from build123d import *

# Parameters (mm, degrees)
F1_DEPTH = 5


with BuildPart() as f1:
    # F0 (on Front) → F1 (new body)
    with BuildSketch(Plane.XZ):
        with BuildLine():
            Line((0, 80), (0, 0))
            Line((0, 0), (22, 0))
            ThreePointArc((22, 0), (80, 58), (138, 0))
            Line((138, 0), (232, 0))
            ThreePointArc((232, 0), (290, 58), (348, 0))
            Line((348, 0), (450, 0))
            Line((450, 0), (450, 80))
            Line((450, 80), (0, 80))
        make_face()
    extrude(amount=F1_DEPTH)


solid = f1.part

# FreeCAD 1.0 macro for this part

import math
import FreeCAD as App
import Part
import Sketcher

doc = App.newDocument("Part")
body = doc.addObject("PartDesign::Body", "Body")

sketch1 = doc.addObject("Sketcher::SketchObject", "Sketch")
body.addObject(sketch1)
sketch1.AttachmentSupport = (doc.XZ_Plane, [""])
sketch1.MapMode = "FlatFace"
sketch1.addGeometry([
    Part.LineSegment(App.Vector(0, 80, 0), App.Vector(0, 0, 0)),
    Part.LineSegment(App.Vector(0, 0, 0), App.Vector(22, 0, 0)),
    Part.ArcOfCircle(Part.Circle(App.Vector(80, 0, 0), App.Vector(0, 0, 1), 58), math.radians(0), math.radians(180)),
    Part.LineSegment(App.Vector(138, 0, 0), App.Vector(232, 0, 0)),
    Part.ArcOfCircle(Part.Circle(App.Vector(290, 0, 0), App.Vector(0, 0, 1), 58), math.radians(0), math.radians(180)),
    Part.LineSegment(App.Vector(348, 0, 0), App.Vector(450, 0, 0)),
    Part.LineSegment(App.Vector(450, 0, 0), App.Vector(450, 80, 0)),
    Part.LineSegment(App.Vector(450, 80, 0), App.Vector(0, 80, 0)),
], False)
sketch1.addConstraint([
    Sketcher.Constraint("Coincident", 0, 2, 1, 1),
    Sketcher.Constraint("Coincident", 1, 2, 2, 2),
    Sketcher.Constraint("Coincident", 2, 1, 3, 1),
    Sketcher.Constraint("Coincident", 3, 2, 4, 2),
    Sketcher.Constraint("Coincident", 4, 1, 5, 1),
    Sketcher.Constraint("Coincident", 5, 2, 6, 1),
    Sketcher.Constraint("Coincident", 6, 2, 7, 1),
    Sketcher.Constraint("Coincident", 7, 2, 0, 1),
    Sketcher.Constraint("Vertical", 0),
    Sketcher.Constraint("Horizontal", 1),
    Sketcher.Constraint("Horizontal", 3),
    Sketcher.Constraint("Horizontal", 5),
    Sketcher.Constraint("Vertical", 6),
    Sketcher.Constraint("Horizontal", 7),
    Sketcher.Constraint("Coincident", 0, 2, -1, 1),
    Sketcher.Constraint("Equal", 2, 4),
    Sketcher.Constraint("PointOnObject", 2, 3, -1),
    Sketcher.Constraint("PointOnObject", 4, 3, -1),
    Sketcher.Constraint("PointOnObject", 2, 1, -1),
    Sketcher.Constraint("PointOnObject", 4, 1, -1),
    Sketcher.Constraint("Radius", 2, 58.0),
    Sketcher.Constraint("DistanceX", 1, 1, 1, 2, 22.0),
    Sketcher.Constraint("DistanceX", 3, 1, 3, 2, 94.0),
    Sketcher.Constraint("DistanceX", 5, 1, 5, 2, 102.0),
    Sketcher.Constraint("DistanceY", 0, 2, 0, 1, 80.0),
])
pad1 = doc.addObject("PartDesign::Pad", "Pad")
body.addObject(pad1)
pad1.Profile = sketch1
pad1.Length = 5

doc.recompute()
